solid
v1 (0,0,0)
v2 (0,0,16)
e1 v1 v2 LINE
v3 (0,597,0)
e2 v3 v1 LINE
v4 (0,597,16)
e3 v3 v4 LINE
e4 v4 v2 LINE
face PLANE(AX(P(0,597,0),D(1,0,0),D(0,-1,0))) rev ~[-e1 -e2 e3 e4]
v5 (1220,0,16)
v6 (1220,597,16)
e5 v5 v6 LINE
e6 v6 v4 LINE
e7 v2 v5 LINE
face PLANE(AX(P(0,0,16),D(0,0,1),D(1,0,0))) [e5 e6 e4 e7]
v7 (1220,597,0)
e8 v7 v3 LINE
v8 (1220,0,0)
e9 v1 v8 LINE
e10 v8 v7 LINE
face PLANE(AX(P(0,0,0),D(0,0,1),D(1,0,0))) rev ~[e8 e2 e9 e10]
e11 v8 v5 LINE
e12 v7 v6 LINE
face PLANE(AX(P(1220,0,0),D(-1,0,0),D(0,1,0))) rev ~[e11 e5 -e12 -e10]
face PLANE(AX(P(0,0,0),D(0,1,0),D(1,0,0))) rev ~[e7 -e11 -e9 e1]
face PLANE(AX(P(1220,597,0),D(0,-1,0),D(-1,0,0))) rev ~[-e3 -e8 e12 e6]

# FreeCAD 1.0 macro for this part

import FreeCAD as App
import Part
import Sketcher

doc = App.newDocument("Part")
params = doc.addObject("Spreadsheet::Sheet", "Params")
for row, (alias, value) in enumerate([
    ("sketch1_width", "1220 mm"),
    ("sketch1_height", "597 mm"),
    ("pad1_length", "16 mm"),
], start=1):
    params.set(f"A{row}", alias)
    params.set(f"B{row}", "=" + value)
    params.setAlias(f"B{row}", alias)

body = doc.addObject("PartDesign::Body", "Body")

# Sketch on XY plane
sketch1 = body.newObject("Sketcher::SketchObject", "Sketch")
sketch1.AttachmentSupport = (doc.getObject("XY_Plane"), [""])
sketch1.MapMode = "FlatFace"
sketch1.addGeometry(Part.LineSegment(App.Vector(0, 597, 0), App.Vector(0, 0, 0)), False)
sketch1.addGeometry(Part.LineSegment(App.Vector(0, 0, 0), App.Vector(1220, 0, 0)), False)
sketch1.addGeometry(Part.LineSegment(App.Vector(1220, 0, 0), App.Vector(1220, 597, 0)), False)
sketch1.addGeometry(Part.LineSegment(App.Vector(1220, 597, 0), App.Vector(0, 597, 0)), False)
sketch1.addConstraint(Sketcher.Constraint("Coincident", 0, 2, 1, 1))
sketch1.addConstraint(Sketcher.Constraint("Coincident", 1, 2, 2, 1))
sketch1.addConstraint(Sketcher.Constraint("Coincident", 2, 2, 3, 1))
sketch1.addConstraint(Sketcher.Constraint("Coincident", 3, 2, 0, 1))
sketch1.addConstraint(Sketcher.Constraint("Vertical", 0))
sketch1.addConstraint(Sketcher.Constraint("Horizontal", 1))
sketch1.addConstraint(Sketcher.Constraint("Vertical", 2))
sketch1.addConstraint(Sketcher.Constraint("Horizontal", 3))
sketch1.addConstraint(Sketcher.Constraint("Coincident", 0, 2, -1, 1))
sketch1.addConstraint(Sketcher.Constraint("DistanceX", 1, 1, 1, 2, 1220.0))
sketch1.addConstraint(Sketcher.Constraint("DistanceY", 0, 2, 0, 1, 597.0))
sketch1.setExpression("Constraints[9]", "Params.sketch1_width")
sketch1.setExpression("Constraints[10]", "Params.sketch1_height")
pad1 = body.newObject("PartDesign::Pad", "Pad")
pad1.Profile = sketch1
pad1.setExpression("Length", "Params.pad1_length")

doc.recompute()
